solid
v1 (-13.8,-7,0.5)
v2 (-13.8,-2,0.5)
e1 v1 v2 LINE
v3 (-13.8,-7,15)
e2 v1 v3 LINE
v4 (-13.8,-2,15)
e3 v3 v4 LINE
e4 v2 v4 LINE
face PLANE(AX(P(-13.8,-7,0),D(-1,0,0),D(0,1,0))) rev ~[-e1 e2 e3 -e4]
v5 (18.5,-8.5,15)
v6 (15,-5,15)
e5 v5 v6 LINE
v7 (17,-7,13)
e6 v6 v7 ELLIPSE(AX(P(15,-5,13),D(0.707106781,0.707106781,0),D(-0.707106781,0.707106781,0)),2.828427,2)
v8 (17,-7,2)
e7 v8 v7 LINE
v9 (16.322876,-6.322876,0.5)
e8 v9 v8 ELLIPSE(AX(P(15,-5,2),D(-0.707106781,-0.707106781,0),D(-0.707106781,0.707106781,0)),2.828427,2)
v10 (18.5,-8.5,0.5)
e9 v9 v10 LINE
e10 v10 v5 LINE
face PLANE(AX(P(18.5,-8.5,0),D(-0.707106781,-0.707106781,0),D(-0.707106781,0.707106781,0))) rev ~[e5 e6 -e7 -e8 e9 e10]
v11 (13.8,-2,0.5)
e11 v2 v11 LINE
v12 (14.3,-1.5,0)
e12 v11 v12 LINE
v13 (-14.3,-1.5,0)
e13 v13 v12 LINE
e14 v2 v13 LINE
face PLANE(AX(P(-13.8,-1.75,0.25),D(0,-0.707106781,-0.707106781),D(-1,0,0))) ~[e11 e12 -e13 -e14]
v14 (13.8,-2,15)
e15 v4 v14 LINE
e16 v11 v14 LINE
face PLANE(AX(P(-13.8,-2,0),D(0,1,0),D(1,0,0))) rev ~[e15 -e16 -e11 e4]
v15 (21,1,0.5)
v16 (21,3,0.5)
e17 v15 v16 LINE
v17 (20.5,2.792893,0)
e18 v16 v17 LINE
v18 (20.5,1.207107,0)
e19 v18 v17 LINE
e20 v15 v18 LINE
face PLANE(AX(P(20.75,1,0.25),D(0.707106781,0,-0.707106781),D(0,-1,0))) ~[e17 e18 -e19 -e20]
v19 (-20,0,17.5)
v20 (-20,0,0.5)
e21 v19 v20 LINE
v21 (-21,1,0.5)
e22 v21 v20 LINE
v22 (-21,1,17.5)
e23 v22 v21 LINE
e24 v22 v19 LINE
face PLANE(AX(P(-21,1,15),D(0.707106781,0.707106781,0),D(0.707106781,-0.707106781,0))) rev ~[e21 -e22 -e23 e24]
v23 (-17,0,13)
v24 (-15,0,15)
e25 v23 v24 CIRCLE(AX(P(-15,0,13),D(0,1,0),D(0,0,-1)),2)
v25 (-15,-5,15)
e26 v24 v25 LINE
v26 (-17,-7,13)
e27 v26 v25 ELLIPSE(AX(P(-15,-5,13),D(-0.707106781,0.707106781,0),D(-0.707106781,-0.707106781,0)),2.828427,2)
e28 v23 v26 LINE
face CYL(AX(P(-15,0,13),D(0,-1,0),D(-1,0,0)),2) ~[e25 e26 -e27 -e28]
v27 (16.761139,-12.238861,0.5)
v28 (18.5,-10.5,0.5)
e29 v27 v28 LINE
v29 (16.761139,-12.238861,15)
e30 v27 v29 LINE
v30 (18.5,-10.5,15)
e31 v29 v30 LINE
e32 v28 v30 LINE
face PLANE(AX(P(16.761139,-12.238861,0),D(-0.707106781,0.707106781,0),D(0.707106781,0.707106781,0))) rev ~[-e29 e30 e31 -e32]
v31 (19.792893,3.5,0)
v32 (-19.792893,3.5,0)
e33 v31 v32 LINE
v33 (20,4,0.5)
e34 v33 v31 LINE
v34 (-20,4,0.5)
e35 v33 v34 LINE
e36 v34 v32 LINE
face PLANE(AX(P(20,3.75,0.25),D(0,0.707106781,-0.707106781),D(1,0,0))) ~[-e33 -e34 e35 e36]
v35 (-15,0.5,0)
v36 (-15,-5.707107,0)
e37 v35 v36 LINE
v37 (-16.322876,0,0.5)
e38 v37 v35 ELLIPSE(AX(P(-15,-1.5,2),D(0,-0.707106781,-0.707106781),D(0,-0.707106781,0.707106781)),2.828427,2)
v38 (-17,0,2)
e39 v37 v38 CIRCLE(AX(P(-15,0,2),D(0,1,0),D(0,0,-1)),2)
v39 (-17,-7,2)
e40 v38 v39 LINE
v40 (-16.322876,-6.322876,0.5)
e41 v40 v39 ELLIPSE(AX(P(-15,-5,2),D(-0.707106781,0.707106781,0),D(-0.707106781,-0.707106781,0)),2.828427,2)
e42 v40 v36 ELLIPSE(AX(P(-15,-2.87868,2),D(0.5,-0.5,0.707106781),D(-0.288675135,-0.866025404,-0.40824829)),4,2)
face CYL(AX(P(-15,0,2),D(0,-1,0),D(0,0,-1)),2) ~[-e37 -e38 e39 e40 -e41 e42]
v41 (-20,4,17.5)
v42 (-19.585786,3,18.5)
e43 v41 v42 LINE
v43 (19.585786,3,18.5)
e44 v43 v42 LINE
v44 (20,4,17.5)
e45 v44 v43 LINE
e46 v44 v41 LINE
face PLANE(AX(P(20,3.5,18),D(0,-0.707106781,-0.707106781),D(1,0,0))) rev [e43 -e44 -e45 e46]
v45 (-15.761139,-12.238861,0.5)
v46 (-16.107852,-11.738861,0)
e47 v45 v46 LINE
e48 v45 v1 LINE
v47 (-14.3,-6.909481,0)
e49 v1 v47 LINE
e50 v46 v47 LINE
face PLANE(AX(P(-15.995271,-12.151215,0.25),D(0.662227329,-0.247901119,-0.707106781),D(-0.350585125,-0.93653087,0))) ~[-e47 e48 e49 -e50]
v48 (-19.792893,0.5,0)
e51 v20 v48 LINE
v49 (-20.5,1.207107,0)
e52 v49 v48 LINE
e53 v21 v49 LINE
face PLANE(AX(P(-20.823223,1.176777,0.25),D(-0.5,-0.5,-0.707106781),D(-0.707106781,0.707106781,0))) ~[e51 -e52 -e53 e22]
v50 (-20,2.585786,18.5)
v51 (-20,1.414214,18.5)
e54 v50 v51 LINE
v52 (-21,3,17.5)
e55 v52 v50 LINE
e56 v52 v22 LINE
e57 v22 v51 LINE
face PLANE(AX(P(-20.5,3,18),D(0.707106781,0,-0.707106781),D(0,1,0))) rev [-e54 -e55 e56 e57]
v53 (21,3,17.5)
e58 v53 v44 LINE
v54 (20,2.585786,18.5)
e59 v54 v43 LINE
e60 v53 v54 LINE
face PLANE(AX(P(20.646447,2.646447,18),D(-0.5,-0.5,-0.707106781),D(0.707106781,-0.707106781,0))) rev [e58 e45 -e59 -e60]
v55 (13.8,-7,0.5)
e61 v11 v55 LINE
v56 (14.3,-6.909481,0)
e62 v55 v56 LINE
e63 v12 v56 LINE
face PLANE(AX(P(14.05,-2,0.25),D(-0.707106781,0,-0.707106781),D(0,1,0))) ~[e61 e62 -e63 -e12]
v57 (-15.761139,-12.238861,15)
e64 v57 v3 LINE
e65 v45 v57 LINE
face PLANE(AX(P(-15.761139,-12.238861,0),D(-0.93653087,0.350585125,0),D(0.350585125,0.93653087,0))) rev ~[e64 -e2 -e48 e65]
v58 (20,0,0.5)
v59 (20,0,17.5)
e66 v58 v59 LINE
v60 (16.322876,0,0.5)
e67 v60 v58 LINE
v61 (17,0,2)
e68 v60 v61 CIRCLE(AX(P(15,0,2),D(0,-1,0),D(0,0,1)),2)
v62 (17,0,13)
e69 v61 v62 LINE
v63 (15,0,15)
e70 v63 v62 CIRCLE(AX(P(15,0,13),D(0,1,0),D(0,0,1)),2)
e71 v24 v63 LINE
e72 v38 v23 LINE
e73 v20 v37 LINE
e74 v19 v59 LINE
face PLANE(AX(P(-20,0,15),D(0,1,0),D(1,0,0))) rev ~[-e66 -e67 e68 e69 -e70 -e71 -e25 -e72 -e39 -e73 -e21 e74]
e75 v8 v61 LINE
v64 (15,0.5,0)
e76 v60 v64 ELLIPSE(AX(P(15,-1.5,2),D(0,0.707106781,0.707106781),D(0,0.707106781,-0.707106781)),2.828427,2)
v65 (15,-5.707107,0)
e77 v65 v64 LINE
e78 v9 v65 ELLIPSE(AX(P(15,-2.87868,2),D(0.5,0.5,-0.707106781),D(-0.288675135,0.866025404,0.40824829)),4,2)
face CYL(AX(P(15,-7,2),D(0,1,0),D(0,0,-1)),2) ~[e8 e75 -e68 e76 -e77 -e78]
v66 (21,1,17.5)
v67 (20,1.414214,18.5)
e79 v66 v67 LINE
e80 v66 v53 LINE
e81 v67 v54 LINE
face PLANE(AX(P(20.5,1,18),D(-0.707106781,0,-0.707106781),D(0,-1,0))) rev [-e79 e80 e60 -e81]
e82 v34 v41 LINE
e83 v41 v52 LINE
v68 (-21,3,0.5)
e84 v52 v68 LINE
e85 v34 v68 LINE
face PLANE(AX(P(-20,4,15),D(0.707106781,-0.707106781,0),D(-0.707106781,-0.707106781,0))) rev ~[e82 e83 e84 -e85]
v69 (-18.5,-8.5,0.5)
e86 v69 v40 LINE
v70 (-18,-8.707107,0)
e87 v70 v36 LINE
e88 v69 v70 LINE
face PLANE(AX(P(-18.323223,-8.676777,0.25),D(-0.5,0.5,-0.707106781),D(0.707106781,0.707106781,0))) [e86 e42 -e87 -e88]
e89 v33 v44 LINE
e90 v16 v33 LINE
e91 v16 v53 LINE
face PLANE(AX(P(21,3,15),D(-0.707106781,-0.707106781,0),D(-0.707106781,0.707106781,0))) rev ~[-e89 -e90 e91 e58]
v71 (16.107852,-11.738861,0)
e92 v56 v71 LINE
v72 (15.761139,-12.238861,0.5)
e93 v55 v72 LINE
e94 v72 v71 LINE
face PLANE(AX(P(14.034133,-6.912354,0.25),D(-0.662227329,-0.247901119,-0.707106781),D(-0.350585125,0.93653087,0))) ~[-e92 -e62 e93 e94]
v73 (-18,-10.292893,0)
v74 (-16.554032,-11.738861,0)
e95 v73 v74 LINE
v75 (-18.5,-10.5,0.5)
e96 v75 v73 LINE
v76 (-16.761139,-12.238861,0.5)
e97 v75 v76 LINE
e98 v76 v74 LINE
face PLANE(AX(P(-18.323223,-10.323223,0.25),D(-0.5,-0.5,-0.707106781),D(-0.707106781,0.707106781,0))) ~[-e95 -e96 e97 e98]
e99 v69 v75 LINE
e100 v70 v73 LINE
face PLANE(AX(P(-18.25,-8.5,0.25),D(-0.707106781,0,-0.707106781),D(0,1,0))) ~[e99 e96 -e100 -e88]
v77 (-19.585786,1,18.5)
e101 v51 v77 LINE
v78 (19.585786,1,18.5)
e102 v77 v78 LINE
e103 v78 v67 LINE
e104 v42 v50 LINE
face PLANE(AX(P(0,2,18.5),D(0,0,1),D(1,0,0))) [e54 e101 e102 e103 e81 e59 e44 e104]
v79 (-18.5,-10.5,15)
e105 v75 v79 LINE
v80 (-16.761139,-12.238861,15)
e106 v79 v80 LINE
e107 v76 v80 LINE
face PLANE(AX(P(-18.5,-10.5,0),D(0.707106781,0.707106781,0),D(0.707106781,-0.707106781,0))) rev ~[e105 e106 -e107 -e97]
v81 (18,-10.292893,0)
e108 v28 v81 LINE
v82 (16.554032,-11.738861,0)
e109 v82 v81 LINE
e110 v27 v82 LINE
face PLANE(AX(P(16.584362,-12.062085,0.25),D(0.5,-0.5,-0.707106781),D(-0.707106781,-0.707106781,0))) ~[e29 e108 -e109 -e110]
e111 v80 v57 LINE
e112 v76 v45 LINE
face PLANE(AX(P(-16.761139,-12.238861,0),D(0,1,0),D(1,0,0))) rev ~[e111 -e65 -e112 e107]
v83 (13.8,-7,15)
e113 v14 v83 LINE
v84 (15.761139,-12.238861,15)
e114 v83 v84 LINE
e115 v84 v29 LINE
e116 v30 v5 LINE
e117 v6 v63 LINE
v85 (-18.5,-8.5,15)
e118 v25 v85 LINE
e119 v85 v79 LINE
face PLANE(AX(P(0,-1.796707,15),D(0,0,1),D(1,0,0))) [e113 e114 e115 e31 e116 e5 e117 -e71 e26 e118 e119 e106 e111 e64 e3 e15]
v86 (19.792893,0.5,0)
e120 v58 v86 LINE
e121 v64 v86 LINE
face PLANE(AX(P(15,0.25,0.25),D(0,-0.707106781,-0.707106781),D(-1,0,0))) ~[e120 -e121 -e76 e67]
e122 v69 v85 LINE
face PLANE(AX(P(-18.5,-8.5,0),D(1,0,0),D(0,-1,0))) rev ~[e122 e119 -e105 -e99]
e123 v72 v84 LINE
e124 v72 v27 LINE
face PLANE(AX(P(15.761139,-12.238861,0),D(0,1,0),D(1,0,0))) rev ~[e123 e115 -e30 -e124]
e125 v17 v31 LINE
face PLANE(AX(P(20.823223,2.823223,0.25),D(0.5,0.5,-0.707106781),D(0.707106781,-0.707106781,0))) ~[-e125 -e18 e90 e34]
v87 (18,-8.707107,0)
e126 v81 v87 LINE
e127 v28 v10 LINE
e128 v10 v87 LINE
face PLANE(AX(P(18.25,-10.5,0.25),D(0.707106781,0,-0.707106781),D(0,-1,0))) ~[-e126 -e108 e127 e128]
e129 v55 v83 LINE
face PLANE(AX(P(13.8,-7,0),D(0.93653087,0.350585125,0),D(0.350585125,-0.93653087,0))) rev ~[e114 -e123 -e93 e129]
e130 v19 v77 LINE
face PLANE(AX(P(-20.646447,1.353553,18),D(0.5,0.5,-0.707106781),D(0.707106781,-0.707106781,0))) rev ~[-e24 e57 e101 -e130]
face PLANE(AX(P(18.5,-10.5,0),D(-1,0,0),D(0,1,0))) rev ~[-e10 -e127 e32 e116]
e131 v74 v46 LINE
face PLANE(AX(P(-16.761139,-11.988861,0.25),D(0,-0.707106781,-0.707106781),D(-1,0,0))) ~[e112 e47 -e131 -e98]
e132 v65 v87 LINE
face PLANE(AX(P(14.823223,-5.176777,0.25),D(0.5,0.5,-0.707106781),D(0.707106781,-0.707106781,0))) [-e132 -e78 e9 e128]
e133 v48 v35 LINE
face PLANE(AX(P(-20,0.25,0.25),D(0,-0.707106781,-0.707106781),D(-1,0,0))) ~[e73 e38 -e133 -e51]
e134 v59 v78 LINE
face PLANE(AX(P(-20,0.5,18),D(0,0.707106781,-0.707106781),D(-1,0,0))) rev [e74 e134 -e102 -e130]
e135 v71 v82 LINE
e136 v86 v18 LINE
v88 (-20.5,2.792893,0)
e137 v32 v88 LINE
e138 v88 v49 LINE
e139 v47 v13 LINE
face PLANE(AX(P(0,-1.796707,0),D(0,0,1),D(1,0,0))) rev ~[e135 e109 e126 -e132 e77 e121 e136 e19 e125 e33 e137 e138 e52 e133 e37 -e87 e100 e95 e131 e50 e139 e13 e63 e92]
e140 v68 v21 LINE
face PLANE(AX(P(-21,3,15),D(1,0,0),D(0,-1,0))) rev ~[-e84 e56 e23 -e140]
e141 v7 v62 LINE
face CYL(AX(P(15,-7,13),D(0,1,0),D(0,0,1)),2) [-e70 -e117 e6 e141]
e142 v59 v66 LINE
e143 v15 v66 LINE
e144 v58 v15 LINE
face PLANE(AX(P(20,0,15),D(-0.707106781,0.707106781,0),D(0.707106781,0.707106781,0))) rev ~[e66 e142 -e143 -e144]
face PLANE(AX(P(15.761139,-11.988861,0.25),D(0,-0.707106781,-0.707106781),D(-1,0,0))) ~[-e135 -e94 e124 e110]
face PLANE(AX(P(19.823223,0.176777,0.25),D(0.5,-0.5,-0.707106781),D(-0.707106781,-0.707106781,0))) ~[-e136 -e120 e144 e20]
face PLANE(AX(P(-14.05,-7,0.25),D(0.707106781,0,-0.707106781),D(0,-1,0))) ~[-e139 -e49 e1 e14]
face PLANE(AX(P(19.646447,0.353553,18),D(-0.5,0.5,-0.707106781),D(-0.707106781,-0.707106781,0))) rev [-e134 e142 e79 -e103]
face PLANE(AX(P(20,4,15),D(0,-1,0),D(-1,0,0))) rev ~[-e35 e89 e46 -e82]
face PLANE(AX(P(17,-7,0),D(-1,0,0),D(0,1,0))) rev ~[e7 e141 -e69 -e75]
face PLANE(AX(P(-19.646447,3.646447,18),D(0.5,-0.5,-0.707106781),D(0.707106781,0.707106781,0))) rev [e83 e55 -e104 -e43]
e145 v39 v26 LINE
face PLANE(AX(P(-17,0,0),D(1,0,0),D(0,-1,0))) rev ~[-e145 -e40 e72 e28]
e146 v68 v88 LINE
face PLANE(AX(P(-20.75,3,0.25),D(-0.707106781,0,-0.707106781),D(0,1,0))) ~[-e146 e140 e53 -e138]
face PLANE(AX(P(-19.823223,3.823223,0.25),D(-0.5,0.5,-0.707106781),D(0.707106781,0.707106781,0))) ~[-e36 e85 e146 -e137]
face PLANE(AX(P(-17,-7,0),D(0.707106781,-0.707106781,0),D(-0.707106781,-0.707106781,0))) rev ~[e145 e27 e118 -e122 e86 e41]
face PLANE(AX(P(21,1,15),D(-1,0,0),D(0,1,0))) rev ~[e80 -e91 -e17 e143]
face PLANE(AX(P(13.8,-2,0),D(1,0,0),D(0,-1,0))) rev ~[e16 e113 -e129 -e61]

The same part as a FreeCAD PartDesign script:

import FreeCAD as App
import Part
import Sketcher

V = App.Vector


def edges_at(feature, points):
    """Names of the edges that pass closest to the given points."""
    edges = feature.Shape.Edges
    near = lambda p: min(range(len(edges)), key=lambda i: edges[i].distToShape(Part.Vertex(*p))[0])
    return sorted({f"Edge{near(p) + 1}" for p in points})


def add_polygon(sketch, points):
    """Adds a closed chain of lines whose ends are joined by coincident constraints."""
    first, n = sketch.GeometryCount, len(points)
    for a, b in zip(points, points[1:] + points[:1]):
        sketch.addGeometry(Part.LineSegment(App.Vector(*a, 0), App.Vector(*b, 0)), False)
    for i in range(n):
        sketch.addConstraint(Sketcher.Constraint("Coincident", first + i, 2, first + (i + 1) % n, 1))

doc = App.newDocument("Part")
body = doc.addObject("PartDesign::Body", "Body")

# Sketch on XY plane
sketch1 = body.newObject("Sketcher::SketchObject", "Sketch")
sketch1.AttachmentSupport = (doc.getObject("XY_Plane"), [""])
sketch1.MapMode = "FlatFace"
add_polygon(sketch1, [(-21, 1), (-20, 0), (-17, 0), (-17, -7), (-18.5, -8.5), (-18.5, -10.5), (-16.8, -12.2), (-15.8, -12.2), (-13.8, -7), (-13.8, -2), (13.8, -2), (13.8, -7), (15.8, -12.2), (16.8, -12.2), (18.5, -10.5), (18.5, -8.5), (17, -7), (17, 0), (20, 0), (21, 1), (21, 3), (20, 4), (-20, 4), (-21, 3)])  # lines 0-23
sketch1.addConstraint([
    Sketcher.Constraint("Horizontal", 1),
    Sketcher.Constraint("Vertical", 2),
    Sketcher.Constraint("Vertical", 4),
    Sketcher.Constraint("Horizontal", 6),
    Sketcher.Constraint("Vertical", 8),
    Sketcher.Constraint("Horizontal", 9),
    Sketcher.Constraint("Vertical", 10),
    Sketcher.Constraint("Horizontal", 12),
    Sketcher.Constraint("Vertical", 14),
    Sketcher.Constraint("Vertical", 16),
    Sketcher.Constraint("Horizontal", 17),
    Sketcher.Constraint("Vertical", 19),
    Sketcher.Constraint("Horizontal", 21),
    Sketcher.Constraint("Vertical", 23),
    Sketcher.Constraint("Symmetric", 1, 2, 16, 2, -1, 1),
    Sketcher.Constraint("Symmetric", 7, 2, 10, 2, -2),
    Sketcher.Constraint("Symmetric", 6, 2, 11, 2, -2),
    Sketcher.Constraint("Symmetric", 4, 2, 13, 2, -2),
    Sketcher.Constraint("Symmetric", 0, 2, 17, 2, -2),
    Sketcher.Constraint("Symmetric", 19, 2, 22, 2, -2),
    Sketcher.Constraint("Perpendicular", 0, 3),
    Sketcher.Constraint("Perpendicular", 3, 5),
    Sketcher.Constraint("Perpendicular", 5, 13),
    Sketcher.Constraint("Perpendicular", 13, 15),
    Sketcher.Constraint("Perpendicular", 15, 18),
    Sketcher.Constraint("Perpendicular", 18, 20),
    Sketcher.Constraint("Perpendicular", 20, 22),
    Sketcher.Constraint("Horizontal", 2, 2, 7, 2),
    Sketcher.Constraint("Horizontal", 3, 2, 14, 2),
    Sketcher.Constraint("Horizontal", 10, 2, 15, 2),
    Sketcher.Constraint("Vertical", 17, 2, 20, 2),
    Sketcher.Constraint("Equal", 14, 19),
    Sketcher.Constraint("DistanceX", 1, 1, 1, 2, 3.0),
    Sketcher.Constraint("DistanceX", 6, 1, 6, 2, 1.0),
    Sketcher.Constraint("DistanceX", 21, 2, 21, 1, 40.0),
    Sketcher.Constraint("DistanceY", 2, 2, 2, 1, 7.0),
    Sketcher.Constraint("DistanceY", 4, 2, 4, 1, 2.0),
    Sketcher.Constraint("DistanceY", 8, 1, 8, 2, 5.0),
    Sketcher.Constraint("DistanceX", 9, 1, 9, 2, 27.6),
    Sketcher.Constraint("DistanceX", -1, 1, 18, 2, 21.0),
    Sketcher.Constraint("DistanceX", 3, 2, -1, 1, 18.5),
    Sketcher.Constraint("Distance", 7, 5.593901),
])
pad1 = body.newObject("PartDesign::Pad", "Pad")
pad1.Profile = sketch1
pad1.Length = 15

# Sketch on XY plane
sketch2 = body.newObject("Sketcher::SketchObject", "Sketch001")
sketch2.AttachmentSupport = (doc.getObject("XY_Plane"), [""])
sketch2.MapMode = "FlatFace"
sketch2.AttachmentOffset = App.Placement(V(0, 0, 15), App.Rotation())
add_polygon(sketch2, [(-20, 0), (20, 0), (21, 1), (21, 3), (20, 4), (-20, 4), (-21, 3), (-21, 1)])  # lines 0-7
sketch2.addConstraint([
    Sketcher.Constraint("Horizontal", 0),
    Sketcher.Constraint("Vertical", 2),
    Sketcher.Constraint("Horizontal", 4),
    Sketcher.Constraint("Vertical", 6),
    Sketcher.Constraint("Symmetric", 0, 2, 7, 2, -1, 1),
    Sketcher.Constraint("Symmetric", 2, 2, 5, 2, -2),
    Sketcher.Constraint("Perpendicular", 1, 3),
    Sketcher.Constraint("Perpendicular", 3, 5),
    Sketcher.Constraint("Perpendicular", 5, 7),
    Sketcher.Constraint("Horizontal", 1, 2, 6, 2),
    Sketcher.Constraint("Vertical", 0, 2, 3, 2),
    Sketcher.Constraint("DistanceX", 0, 1, 0, 2, 40.0),
    Sketcher.Constraint("DistanceY", 2, 1, 2, 2, 2.0),
    Sketcher.Constraint("DistanceX", -1, 1, 1, 2, 21.0),
])
pad2 = body.newObject("PartDesign::Pad", "Pad001")
pad2.Profile = sketch2
pad2.Length = 3.5
doc.recompute()

chamfer = body.newObject("PartDesign::Chamfer", "Chamfer")
chamfer.Base = (pad2, edges_at(pad2, [
    (0, 0, 18.5),
    (20.5, 0.5, 18.5),
    (21, 2, 18.5),
    (20.5, 3.5, 18.5),
    (0, 4, 18.5),
    (-20.5, 3.5, 18.5),
    (-21, 2, 18.5),
    (-20.5, 0.5, 18.5),
]))
chamfer.Size = 1
doc.recompute()

fillet = body.newObject("PartDesign::Fillet", "Fillet")
fillet.Base = (chamfer, edges_at(chamfer, [
    (-17, -3.5, 0),
    (-17, -3.5, 15),
    (17, -3.5, 0),
    (17, -3.5, 15),
]))
fillet.Radius = 2
doc.recompute()

chamfer2 = body.newObject("PartDesign::Chamfer", "Chamfer001")
chamfer2.Base = (fillet, edges_at(fillet, [
    (-17.5, 0, 0),
    (-17.5, 0, 0),
    (-15, -2.5, 0),
    (-20.5, 0.5, 0),
    (-16.75, -6.75, 0),
    (-21, 2, 0),
    (-16.75, -6.75, 0),
    (-20.5, 3.5, 0),
    (-18.5, -9.5, 0),
    (0, 4, 0),
    (-17.631, -11.369, 0),
    (20.5, 3.5, 0),
    (-16.261, -12.239, 0),
    (21, 2, 0),
    (-14.781, -9.619, 0),
    (20.5, 0.5, 0),
    (-13.8, -4.5, 0),
    (17.5, 0, 0),
    (0, -2, 0),
    (17.5, 0, 0),
    (13.8, -4.5, 0),
    (15, -2.5, 0),
    (14.781, -9.619, 0),
    (16.75, -6.75, 0),
    (16.261, -12.239, 0),
    (16.75, -6.75, 0),
    (17.631, -11.369, 0),
    (18.5, -9.5, 0),
]))
chamfer2.Size = 0.5

doc.recompute()
